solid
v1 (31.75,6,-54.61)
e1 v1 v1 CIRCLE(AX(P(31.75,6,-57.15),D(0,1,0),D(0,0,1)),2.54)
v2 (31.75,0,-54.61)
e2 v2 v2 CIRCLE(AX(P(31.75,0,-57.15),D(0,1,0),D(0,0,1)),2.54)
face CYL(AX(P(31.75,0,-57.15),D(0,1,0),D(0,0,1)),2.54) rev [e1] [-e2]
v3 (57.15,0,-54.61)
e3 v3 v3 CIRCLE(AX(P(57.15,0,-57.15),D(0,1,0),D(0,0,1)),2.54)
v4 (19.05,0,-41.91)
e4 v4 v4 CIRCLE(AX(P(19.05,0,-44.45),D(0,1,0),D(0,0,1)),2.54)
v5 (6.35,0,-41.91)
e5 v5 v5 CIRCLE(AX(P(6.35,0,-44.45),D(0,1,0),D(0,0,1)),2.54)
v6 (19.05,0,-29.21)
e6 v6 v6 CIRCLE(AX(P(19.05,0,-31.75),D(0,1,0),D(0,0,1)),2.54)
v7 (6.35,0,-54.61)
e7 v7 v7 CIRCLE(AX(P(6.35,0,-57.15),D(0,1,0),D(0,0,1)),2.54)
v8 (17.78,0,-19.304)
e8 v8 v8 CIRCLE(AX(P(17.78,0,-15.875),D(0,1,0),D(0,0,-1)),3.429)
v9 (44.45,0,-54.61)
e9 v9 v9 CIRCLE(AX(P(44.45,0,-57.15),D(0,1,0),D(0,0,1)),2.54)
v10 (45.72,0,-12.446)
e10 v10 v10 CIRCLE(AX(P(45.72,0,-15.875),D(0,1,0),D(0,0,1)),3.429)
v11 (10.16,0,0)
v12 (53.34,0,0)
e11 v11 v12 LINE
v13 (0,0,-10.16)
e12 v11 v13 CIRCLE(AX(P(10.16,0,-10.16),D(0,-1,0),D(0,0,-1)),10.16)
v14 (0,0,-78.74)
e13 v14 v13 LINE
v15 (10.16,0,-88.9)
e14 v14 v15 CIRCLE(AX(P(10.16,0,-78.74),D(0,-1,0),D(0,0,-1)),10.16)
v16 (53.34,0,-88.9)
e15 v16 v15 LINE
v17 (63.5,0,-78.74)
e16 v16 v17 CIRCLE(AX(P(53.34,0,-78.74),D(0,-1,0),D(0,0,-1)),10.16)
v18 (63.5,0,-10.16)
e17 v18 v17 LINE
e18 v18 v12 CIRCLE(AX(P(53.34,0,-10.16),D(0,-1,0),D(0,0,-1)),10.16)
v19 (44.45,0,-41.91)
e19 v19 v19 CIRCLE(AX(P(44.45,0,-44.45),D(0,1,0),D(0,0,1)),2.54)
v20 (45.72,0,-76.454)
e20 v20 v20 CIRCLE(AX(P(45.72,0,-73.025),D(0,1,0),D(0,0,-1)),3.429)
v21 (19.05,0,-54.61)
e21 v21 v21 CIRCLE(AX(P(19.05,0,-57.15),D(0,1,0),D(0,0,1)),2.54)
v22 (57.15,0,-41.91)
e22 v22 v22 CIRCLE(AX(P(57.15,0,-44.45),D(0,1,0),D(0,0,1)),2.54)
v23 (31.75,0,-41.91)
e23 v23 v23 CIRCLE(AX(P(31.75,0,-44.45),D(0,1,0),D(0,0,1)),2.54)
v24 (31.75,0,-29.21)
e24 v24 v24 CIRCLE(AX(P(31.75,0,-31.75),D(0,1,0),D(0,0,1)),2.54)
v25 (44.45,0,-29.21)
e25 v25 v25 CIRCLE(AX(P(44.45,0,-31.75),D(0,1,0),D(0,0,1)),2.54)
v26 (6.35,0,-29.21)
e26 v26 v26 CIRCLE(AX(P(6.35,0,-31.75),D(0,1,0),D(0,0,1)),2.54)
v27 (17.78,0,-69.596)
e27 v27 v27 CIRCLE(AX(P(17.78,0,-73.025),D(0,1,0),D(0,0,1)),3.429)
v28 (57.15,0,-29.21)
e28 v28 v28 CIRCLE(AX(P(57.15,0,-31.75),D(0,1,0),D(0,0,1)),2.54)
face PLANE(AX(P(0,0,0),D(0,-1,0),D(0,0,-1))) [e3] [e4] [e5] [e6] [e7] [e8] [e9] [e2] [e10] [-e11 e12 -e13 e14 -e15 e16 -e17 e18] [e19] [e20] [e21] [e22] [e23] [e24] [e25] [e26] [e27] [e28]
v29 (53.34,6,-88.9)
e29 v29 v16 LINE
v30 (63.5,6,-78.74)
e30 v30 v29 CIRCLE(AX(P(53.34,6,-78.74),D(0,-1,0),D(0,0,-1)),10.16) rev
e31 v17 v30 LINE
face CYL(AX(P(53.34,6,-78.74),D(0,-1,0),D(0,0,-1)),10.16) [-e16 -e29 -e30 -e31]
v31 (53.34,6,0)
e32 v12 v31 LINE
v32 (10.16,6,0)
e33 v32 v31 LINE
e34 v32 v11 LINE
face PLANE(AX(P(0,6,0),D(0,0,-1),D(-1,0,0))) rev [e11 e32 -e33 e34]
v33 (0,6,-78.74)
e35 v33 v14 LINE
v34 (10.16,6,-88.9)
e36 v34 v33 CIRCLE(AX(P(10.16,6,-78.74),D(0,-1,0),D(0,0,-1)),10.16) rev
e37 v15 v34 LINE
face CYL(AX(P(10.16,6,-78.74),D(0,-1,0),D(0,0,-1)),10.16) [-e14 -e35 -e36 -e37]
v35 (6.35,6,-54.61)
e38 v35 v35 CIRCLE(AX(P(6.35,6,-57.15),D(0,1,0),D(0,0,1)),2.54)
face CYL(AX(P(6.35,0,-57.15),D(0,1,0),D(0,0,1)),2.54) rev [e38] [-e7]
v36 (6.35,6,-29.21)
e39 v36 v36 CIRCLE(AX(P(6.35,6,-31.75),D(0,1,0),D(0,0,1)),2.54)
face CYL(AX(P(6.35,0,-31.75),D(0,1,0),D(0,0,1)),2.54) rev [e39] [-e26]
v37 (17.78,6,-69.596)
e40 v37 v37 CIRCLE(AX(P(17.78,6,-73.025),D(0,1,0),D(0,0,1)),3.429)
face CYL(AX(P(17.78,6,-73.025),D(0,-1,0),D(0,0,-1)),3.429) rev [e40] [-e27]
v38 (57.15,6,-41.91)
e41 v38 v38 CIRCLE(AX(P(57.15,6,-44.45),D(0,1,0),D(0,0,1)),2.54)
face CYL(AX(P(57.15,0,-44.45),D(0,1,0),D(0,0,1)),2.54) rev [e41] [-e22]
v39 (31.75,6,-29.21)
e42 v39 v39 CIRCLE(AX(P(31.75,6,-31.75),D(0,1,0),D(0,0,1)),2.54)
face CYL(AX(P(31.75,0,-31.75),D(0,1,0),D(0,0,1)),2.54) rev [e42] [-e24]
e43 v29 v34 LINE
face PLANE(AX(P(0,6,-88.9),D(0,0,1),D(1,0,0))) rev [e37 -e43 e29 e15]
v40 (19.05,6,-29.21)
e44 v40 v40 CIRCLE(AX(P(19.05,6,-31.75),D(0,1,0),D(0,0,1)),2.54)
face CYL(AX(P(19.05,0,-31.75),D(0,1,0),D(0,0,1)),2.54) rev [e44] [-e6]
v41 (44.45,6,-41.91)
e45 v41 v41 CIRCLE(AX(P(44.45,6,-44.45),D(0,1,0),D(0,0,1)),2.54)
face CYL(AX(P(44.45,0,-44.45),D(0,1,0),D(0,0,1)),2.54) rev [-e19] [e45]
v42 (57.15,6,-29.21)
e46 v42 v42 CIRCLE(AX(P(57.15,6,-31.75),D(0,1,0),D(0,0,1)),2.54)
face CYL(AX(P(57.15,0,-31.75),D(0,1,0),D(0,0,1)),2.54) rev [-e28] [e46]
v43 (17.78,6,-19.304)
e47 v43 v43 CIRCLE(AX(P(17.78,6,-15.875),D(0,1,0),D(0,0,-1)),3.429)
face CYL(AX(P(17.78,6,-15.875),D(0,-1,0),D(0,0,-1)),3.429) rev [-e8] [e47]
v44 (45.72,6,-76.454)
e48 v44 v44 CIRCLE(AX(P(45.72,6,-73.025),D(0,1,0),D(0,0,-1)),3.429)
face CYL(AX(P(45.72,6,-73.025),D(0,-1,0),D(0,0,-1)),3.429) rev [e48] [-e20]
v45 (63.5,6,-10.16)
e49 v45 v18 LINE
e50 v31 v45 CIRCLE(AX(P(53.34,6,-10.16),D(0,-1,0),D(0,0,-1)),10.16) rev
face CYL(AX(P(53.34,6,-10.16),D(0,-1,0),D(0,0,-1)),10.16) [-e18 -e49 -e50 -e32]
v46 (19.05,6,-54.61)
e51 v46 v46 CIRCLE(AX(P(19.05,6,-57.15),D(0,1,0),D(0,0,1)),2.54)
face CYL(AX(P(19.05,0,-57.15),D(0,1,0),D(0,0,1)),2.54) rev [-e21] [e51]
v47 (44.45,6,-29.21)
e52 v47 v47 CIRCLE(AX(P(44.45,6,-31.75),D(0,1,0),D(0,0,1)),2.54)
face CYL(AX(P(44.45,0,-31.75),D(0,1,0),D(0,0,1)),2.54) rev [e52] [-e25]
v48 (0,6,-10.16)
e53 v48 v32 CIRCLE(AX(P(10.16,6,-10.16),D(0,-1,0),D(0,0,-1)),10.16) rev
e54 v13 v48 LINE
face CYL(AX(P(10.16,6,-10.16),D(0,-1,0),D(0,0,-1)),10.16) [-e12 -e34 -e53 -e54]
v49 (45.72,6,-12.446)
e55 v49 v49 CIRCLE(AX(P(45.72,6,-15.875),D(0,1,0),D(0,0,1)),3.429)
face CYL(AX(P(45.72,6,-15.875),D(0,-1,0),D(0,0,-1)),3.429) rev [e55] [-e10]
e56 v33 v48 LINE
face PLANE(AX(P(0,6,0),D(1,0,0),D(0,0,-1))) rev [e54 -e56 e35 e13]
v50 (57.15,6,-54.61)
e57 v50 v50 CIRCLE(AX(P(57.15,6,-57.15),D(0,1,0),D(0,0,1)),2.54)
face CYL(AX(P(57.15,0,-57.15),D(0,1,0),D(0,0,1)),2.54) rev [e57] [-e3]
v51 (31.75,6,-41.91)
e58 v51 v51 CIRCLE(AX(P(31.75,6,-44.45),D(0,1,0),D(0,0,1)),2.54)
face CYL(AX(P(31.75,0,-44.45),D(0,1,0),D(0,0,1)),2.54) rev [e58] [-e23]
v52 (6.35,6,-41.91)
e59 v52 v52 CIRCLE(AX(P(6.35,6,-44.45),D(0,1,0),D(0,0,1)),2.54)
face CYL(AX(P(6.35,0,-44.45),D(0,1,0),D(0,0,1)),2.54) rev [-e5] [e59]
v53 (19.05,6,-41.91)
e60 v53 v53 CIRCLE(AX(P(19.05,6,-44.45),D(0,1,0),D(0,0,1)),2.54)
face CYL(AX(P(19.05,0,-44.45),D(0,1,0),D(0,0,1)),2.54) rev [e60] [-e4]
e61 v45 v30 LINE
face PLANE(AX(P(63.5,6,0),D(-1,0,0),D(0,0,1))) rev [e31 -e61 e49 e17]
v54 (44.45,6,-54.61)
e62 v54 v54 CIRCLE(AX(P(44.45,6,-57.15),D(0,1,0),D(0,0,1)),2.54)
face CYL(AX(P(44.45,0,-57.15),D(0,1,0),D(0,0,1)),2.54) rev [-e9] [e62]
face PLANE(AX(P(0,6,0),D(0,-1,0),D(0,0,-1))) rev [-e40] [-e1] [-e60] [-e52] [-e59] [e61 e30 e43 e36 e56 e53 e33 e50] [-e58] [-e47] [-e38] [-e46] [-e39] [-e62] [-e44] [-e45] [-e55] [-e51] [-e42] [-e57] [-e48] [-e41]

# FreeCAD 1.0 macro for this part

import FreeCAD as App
import Part
import Sketcher

V = App.Vector
Q = App.Units.Quantity


def edges_at(feature, points):
    """Names of the edges that pass closest to the given points."""
    edges = feature.Shape.Edges
    near = lambda p: min(range(len(edges)), key=lambda i: edges[i].distToShape(Part.Vertex(*p))[0])
    return sorted({f"Edge{near(p) + 1}" for p in points})

doc = App.newDocument("Part")
body = doc.addObject("PartDesign::Body", "Body")

sketch1 = body.newObject("Sketcher::SketchObject", "Sketch")
sketch1.AttachmentSupport = (doc.getObject("XZ_Plane"), [""])
sketch1.MapMode = "FlatFace"
sketch1.addGeometry([
    Part.LineSegment(V(0, -88.9, 0), V(0, 0, 0)),
    Part.LineSegment(V(0, 0, 0), V(63.5, 0, 0)),
    Part.LineSegment(V(63.5, 0, 0), V(63.5, -88.9, 0)),
    Part.LineSegment(V(63.5, -88.9, 0), V(0, -88.9, 0)),
    Part.Circle(V(17.8, -15.9, 0), V(0, 0, 1), 3.4),
    Part.Circle(V(45.7, -15.9, 0), V(0, 0, 1), 3.4),
    Part.Circle(V(17.8, -73, 0), V(0, 0, 1), 3.4),
    Part.Circle(V(45.7, -73, 0), V(0, 0, 1), 3.4),
], False)
sketch1.addConstraint([
    Sketcher.Constraint("Coincident", 0, 2, 1, 1),
    Sketcher.Constraint("Coincident", 1, 2, 2, 1),
    Sketcher.Constraint("Coincident", 2, 2, 3, 1),
    Sketcher.Constraint("Coincident", 3, 2, 0, 1),
    Sketcher.Constraint("Vertical", 0),
    Sketcher.Constraint("Horizontal", 1),
    Sketcher.Constraint("Vertical", 2),
    Sketcher.Constraint("Horizontal", 3),
    Sketcher.Constraint("Coincident", 0, 2, -1, 1),
    Sketcher.Constraint("Equal", 4, 5),
    Sketcher.Constraint("Equal", 5, 6),
    Sketcher.Constraint("Equal", 6, 7),
    Sketcher.Constraint("Horizontal", 4, 3, 5, 3),
    Sketcher.Constraint("Horizontal", 6, 3, 7, 3),
    Sketcher.Constraint("Vertical", 4, 3, 6, 3),
    Sketcher.Constraint("Vertical", 5, 3, 7, 3),
    Sketcher.Constraint("Diameter", 4, Q("0.27 in")),
    Sketcher.Constraint("DistanceX", 1, 1, 1, 2, Q("2.5 in")),
    Sketcher.Constraint("DistanceY", 0, 1, 0, 2, Q("3.5 in")),
    Sketcher.Constraint("DistanceX", -1, 1, 4, 3, Q("0.7 in")),
    Sketcher.Constraint("DistanceX", -1, 1, 5, 3, Q("1.8 in")),
    Sketcher.Constraint("DistanceY", 6, 3, 4, 3, Q("2.25 in")),
    Sketcher.Constraint("DistanceY", 4, 3, -1, 1, Q("0.625 in")),
])
pad1 = body.newObject("PartDesign::Pad", "Pad")
pad1.Profile = sketch1
pad1.Length = 6
pad1.Reversed = True
doc.recompute()

fillet = body.newObject("PartDesign::Fillet", "Fillet")
fillet.Base = (pad1, edges_at(pad1, [
    (0, 3, -88.9),
    (63.5, 3, -88.9),
    (63.5, 3, 0),
    (0, 3, 0),
]))
fillet.Radius = Q("0.4 in")

sketch2 = body.newObject("Sketcher::SketchObject", "Sketch001")
sketch2.AttachmentSupport = (doc.getObject("XZ_Plane"), [""])
sketch2.MapMode = "FlatFace"
sketch2.AttachmentOffset = App.Placement(V(0, 0, -6), App.Rotation())
sketch2.addGeometry([
    Part.Circle(V(6.3, -31.8, 0), V(0, 0, 1), 2.5),
    Part.Circle(V(6.3, -44.5, 0), V(0, 0, 1), 2.5),
    Part.Circle(V(6.3, -57.1, 0), V(0, 0, 1), 2.5),
    Part.Circle(V(19.1, -57.1, 0), V(0, 0, 1), 2.5),
    Part.Circle(V(19.1, -44.5, 0), V(0, 0, 1), 2.5),
    Part.Circle(V(19.1, -31.8, 0), V(0, 0, 1), 2.5),
    Part.Circle(V(31.8, -31.8, 0), V(0, 0, 1), 2.5),
    Part.Circle(V(31.8, -44.5, 0), V(0, 0, 1), 2.5),
    Part.Circle(V(31.8, -57.1, 0), V(0, 0, 1), 2.5),
    Part.Circle(V(44.5, -57.1, 0), V(0, 0, 1), 2.5),
    Part.Circle(V(44.5, -44.5, 0), V(0, 0, 1), 2.5),
    Part.Circle(V(57.1, -44.5, 0), V(0, 0, 1), 2.5),
    Part.Circle(V(57.1, -31.8, 0), V(0, 0, 1), 2.5),
    Part.Circle(V(44.5, -31.8, 0), V(0, 0, 1), 2.5),
    Part.Circle(V(57.1, -57.1, 0), V(0, 0, 1), 2.5),
], False)
sketch2.addConstraint([
    Sketcher.Constraint("Equal", 0, 1),
    Sketcher.Constraint("Equal", 1, 2),
    Sketcher.Constraint("Equal", 2, 3),
    Sketcher.Constraint("Equal", 3, 4),
    Sketcher.Constraint("Equal", 4, 5),
    Sketcher.Constraint("Equal", 5, 6),
    Sketcher.Constraint("Equal", 6, 7),
    Sketcher.Constraint("Equal", 7, 8),
    Sketcher.Constraint("Equal", 8, 9),
    Sketcher.Constraint("Equal", 9, 10),
    Sketcher.Constraint("Equal", 10, 11),
    Sketcher.Constraint("Equal", 11, 12),
    Sketcher.Constraint("Equal", 12, 13),
    Sketcher.Constraint("Equal", 13, 14),
    Sketcher.Constraint("Horizontal", 2, 3, 3, 3),
    Sketcher.Constraint("Horizontal", 1, 3, 4, 3),
    Sketcher.Constraint("Horizontal", 0, 3, 5, 3),
    Sketcher.Constraint("Horizontal", 5, 3, 6, 3),
    Sketcher.Constraint("Horizontal", 4, 3, 7, 3),
    Sketcher.Constraint("Horizontal", 3, 3, 8, 3),
    Sketcher.Constraint("Horizontal", 8, 3, 9, 3),
    Sketcher.Constraint("Horizontal", 7, 3, 10, 3),
    Sketcher.Constraint("Horizontal", 10, 3, 11, 3),
    Sketcher.Constraint("Horizontal", 6, 3, 12, 3),
    Sketcher.Constraint("Horizontal", 12, 3, 13, 3),
    Sketcher.Constraint("Horizontal", 9, 3, 14, 3),
    Sketcher.Constraint("Vertical", 0, 3, 1, 3),
    Sketcher.Constraint("Vertical", 1, 3, 2, 3),
    Sketcher.Constraint("Vertical", 3, 3, 4, 3),
    Sketcher.Constraint("Vertical", 4, 3, 5, 3),
    Sketcher.Constraint("Vertical", 6, 3, 7, 3),
    Sketcher.Constraint("Vertical", 7, 3, 8, 3),
    Sketcher.Constraint("Vertical", 9, 3, 10, 3),
    Sketcher.Constraint("Vertical", 11, 3, 12, 3),
    Sketcher.Constraint("Vertical", 10, 3, 13, 3),
    Sketcher.Constraint("Vertical", 12, 3, 14, 3),
    Sketcher.Constraint("Diameter", 0, Q("0.2 in")),
    Sketcher.Constraint("DistanceY", 2, 3, 0, 3, Q("1 in")),
    Sketcher.Constraint("DistanceX", 0, 3, 6, 3, Q("1 in")),
    Sketcher.Constraint("DistanceX", 3, 3, 9, 3, Q("1 in")),
    Sketcher.Constraint("DistanceX", 7, 3, 11, 3, Q("1 in")),
    Sketcher.Constraint("DistanceY", 1, 3, 0, 3, Q("0.5 in")),
    Sketcher.Constraint("DistanceX", 2, 3, 3, 3, Q("0.5 in")),
    Sketcher.Constraint("DistanceX", -1, 1, 0, 3, Q("0.25 in")),
    Sketcher.Constraint("DistanceY", 0, 3, -1, 1, Q("1.25 in")),
])
pocket1 = body.newObject("PartDesign::Pocket", "Pocket")
pocket1.Profile = sketch2
pocket1.Type = "ThroughAll"
pocket1.Reversed = True

doc.recompute()
